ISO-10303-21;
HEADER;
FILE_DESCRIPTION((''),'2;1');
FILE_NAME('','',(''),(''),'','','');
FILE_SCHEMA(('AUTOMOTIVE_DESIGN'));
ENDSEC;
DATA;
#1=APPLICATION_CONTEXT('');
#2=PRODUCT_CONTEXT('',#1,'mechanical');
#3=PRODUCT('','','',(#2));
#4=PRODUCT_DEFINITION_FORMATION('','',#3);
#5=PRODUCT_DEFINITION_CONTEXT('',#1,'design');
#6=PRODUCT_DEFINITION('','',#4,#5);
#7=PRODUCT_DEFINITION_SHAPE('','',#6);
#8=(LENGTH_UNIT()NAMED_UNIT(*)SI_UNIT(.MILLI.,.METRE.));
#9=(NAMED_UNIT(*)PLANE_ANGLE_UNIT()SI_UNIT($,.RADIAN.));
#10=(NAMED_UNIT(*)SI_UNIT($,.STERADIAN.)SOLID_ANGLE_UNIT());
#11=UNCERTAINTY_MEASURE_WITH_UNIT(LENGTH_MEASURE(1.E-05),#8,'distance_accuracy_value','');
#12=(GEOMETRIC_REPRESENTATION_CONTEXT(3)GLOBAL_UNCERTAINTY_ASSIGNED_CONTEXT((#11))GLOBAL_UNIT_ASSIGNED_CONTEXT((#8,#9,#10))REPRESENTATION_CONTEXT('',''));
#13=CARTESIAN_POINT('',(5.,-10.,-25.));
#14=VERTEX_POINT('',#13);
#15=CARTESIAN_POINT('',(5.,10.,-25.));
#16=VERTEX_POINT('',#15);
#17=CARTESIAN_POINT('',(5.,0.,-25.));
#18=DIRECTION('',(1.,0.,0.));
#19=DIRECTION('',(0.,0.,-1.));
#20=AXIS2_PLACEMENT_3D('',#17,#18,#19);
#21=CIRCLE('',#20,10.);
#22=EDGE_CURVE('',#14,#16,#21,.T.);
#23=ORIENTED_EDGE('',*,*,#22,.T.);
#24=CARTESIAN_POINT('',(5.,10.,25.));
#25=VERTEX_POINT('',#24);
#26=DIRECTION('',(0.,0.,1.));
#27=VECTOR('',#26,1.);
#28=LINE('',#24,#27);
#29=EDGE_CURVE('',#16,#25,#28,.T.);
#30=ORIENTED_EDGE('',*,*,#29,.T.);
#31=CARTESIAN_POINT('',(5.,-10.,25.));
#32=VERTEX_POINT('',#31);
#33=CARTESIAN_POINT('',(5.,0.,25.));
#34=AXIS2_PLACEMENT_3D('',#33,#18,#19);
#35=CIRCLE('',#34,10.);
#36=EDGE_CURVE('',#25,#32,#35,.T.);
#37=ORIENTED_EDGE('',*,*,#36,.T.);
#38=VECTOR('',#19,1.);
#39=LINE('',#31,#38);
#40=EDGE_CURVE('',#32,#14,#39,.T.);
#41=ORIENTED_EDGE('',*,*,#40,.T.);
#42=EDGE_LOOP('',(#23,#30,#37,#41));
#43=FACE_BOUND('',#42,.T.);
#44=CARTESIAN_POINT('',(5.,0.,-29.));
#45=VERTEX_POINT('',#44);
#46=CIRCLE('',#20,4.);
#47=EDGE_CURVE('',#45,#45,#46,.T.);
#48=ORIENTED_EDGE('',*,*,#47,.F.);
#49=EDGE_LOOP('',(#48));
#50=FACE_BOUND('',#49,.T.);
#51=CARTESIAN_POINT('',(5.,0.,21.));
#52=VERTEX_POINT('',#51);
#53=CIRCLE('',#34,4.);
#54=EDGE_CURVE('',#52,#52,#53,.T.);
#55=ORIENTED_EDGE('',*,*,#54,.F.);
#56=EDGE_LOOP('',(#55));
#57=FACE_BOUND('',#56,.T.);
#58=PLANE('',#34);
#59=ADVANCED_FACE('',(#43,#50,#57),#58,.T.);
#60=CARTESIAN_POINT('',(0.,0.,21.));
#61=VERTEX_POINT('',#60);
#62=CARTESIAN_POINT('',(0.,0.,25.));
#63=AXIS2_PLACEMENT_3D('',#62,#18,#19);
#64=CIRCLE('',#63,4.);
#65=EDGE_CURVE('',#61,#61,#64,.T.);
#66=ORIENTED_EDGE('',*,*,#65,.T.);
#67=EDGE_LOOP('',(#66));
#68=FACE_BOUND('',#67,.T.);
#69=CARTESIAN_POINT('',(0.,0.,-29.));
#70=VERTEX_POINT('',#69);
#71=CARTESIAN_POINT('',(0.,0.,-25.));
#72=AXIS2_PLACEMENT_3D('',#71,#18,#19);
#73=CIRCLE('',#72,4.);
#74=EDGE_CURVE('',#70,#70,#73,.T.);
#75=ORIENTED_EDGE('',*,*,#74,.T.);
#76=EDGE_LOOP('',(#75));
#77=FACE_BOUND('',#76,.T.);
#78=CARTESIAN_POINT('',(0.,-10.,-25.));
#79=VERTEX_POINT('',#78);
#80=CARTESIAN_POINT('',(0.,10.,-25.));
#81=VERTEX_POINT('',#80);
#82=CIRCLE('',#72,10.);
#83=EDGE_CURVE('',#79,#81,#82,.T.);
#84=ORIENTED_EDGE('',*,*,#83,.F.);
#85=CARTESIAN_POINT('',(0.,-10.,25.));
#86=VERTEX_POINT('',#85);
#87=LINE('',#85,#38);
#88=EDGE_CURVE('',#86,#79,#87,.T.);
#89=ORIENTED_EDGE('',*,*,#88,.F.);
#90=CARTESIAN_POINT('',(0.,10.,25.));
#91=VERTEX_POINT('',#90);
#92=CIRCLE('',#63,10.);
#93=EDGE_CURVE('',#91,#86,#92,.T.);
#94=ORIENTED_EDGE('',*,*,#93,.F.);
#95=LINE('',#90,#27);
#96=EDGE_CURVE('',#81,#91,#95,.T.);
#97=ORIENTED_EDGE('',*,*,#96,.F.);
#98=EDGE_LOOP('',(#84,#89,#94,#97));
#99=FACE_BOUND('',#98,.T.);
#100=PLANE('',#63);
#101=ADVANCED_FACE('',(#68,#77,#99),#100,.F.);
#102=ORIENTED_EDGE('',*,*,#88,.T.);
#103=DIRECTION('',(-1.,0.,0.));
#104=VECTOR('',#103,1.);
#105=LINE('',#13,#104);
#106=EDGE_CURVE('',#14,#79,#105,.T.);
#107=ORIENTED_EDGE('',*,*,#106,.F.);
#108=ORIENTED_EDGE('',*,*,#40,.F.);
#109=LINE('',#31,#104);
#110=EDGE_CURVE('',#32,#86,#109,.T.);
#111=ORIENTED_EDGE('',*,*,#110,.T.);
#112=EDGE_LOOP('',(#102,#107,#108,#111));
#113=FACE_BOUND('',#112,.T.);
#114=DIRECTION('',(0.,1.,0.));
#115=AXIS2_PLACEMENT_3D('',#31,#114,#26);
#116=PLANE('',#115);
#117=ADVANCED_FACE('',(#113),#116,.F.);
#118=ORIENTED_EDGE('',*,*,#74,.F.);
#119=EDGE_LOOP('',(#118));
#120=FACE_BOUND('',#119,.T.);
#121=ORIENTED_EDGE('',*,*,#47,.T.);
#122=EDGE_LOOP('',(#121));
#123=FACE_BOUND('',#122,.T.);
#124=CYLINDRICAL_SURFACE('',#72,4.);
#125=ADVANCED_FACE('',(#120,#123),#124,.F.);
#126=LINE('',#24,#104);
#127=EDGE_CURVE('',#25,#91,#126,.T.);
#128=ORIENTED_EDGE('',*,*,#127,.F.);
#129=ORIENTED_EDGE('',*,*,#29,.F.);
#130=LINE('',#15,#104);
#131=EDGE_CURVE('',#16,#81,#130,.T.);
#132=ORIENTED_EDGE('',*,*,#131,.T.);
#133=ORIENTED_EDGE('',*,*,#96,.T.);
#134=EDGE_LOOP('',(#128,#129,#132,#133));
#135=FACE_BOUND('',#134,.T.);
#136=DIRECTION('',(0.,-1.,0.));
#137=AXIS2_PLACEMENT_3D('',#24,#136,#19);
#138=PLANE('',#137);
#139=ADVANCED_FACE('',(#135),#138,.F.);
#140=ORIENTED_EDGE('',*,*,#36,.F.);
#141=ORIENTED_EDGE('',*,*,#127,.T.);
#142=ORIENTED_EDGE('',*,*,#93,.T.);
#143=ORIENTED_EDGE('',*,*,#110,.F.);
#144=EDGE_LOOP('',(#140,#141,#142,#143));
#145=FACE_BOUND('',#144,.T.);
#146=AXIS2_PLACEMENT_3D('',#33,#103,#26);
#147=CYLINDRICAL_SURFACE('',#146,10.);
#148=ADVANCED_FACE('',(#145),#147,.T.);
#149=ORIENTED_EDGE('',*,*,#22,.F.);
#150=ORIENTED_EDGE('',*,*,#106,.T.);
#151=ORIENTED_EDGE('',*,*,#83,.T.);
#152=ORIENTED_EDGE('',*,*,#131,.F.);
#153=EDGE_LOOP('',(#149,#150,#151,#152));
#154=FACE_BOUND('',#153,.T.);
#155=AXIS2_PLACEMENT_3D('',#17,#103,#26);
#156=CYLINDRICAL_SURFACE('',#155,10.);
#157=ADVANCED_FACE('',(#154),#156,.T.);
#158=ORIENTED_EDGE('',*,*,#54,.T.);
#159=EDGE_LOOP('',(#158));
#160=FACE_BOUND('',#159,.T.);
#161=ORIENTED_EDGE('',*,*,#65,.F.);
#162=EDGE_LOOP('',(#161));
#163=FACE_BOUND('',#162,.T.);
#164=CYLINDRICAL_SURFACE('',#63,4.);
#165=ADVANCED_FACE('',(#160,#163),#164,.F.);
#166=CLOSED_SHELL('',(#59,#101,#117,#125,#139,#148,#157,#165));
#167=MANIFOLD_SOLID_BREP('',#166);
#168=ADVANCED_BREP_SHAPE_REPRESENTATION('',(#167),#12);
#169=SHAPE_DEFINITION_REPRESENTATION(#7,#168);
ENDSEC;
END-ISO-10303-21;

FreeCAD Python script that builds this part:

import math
import FreeCAD as App
import Part
import Sketcher

V = App.Vector

doc = App.newDocument("Part")
body = doc.addObject("PartDesign::Body", "Body")

# Sketch on YZ plane
sketch1 = body.newObject("Sketcher::SketchObject", "Sketch")
sketch1.AttachmentSupport = (doc.getObject("YZ_Plane"), [""])
sketch1.MapMode = "FlatFace"
sketch1.addGeometry(Part.LineSegment(V(10, -25, 0), V(10, 25, 0)), False)
sketch1.addGeometry(Part.ArcOfCircle(Part.Circle(V(0, 25, 0), V(0, 0, 1), 10), math.radians(0), math.radians(180)), False)
sketch1.addGeometry(Part.LineSegment(V(-10, 25, 0), V(-10, -25, 0)), False)
sketch1.addGeometry(Part.ArcOfCircle(Part.Circle(V(0, -25, 0), V(0, 0, 1), 10), math.radians(180), math.radians(360)), False)
sketch1.addConstraint(Sketcher.Constraint("Tangent", 0, 2, 1, 1))
sketch1.addConstraint(Sketcher.Constraint("Tangent", 1, 2, 2, 1))
sketch1.addConstraint(Sketcher.Constraint("Tangent", 2, 2, 3, 1))
sketch1.addConstraint(Sketcher.Constraint("Tangent", 3, 2, 0, 1))
sketch1.addConstraint(Sketcher.Constraint("Vertical", 0))
sketch1.addConstraint(Sketcher.Constraint("Vertical", 2))
sketch1.addConstraint(Sketcher.Constraint("Symmetric", 1, 3, 3, 3, -1, 1))
sketch1.addConstraint(Sketcher.Constraint("Radius", 1, 10.0))
sketch1.addConstraint(Sketcher.Constraint("DistanceY", 0, 1, 0, 2, 50.0))
pad1 = body.newObject("PartDesign::Pad", "Pad")
pad1.Profile = sketch1
pad1.Length = 5

# Sketch on YZ plane
sketch2 = body.newObject("Sketcher::SketchObject", "Sketch001")
sketch2.AttachmentSupport = (doc.getObject("YZ_Plane"), [""])
sketch2.MapMode = "FlatFace"
sketch2.AttachmentOffset = App.Placement(V(0, 0, 5), App.Rotation())
sketch2.addGeometry(Part.Circle(V(0, 25, 0), V(0, 0, 1), 4), False)
sketch2.addGeometry(Part.Circle(V(0, -25, 0), V(0, 0, 1), 4), False)
sketch2.addConstraint(Sketcher.Constraint("Equal", 0, 1))
sketch2.addConstraint(Sketcher.Constraint("Symmetric", 0, 3, 1, 3, -1, 1))
sketch2.addConstraint(Sketcher.Constraint("PointOnObject", 0, 3, -2))
sketch2.addConstraint(Sketcher.Constraint("Diameter", 0, 8.0))
sketch2.addConstraint(Sketcher.Constraint("DistanceY", -1, 1, 0, 3, 25.0))
pocket1 = body.newObject("PartDesign::Pocket", "Pocket")
pocket1.Profile = sketch2
pocket1.Type = "ThroughAll"

doc.recompute()
